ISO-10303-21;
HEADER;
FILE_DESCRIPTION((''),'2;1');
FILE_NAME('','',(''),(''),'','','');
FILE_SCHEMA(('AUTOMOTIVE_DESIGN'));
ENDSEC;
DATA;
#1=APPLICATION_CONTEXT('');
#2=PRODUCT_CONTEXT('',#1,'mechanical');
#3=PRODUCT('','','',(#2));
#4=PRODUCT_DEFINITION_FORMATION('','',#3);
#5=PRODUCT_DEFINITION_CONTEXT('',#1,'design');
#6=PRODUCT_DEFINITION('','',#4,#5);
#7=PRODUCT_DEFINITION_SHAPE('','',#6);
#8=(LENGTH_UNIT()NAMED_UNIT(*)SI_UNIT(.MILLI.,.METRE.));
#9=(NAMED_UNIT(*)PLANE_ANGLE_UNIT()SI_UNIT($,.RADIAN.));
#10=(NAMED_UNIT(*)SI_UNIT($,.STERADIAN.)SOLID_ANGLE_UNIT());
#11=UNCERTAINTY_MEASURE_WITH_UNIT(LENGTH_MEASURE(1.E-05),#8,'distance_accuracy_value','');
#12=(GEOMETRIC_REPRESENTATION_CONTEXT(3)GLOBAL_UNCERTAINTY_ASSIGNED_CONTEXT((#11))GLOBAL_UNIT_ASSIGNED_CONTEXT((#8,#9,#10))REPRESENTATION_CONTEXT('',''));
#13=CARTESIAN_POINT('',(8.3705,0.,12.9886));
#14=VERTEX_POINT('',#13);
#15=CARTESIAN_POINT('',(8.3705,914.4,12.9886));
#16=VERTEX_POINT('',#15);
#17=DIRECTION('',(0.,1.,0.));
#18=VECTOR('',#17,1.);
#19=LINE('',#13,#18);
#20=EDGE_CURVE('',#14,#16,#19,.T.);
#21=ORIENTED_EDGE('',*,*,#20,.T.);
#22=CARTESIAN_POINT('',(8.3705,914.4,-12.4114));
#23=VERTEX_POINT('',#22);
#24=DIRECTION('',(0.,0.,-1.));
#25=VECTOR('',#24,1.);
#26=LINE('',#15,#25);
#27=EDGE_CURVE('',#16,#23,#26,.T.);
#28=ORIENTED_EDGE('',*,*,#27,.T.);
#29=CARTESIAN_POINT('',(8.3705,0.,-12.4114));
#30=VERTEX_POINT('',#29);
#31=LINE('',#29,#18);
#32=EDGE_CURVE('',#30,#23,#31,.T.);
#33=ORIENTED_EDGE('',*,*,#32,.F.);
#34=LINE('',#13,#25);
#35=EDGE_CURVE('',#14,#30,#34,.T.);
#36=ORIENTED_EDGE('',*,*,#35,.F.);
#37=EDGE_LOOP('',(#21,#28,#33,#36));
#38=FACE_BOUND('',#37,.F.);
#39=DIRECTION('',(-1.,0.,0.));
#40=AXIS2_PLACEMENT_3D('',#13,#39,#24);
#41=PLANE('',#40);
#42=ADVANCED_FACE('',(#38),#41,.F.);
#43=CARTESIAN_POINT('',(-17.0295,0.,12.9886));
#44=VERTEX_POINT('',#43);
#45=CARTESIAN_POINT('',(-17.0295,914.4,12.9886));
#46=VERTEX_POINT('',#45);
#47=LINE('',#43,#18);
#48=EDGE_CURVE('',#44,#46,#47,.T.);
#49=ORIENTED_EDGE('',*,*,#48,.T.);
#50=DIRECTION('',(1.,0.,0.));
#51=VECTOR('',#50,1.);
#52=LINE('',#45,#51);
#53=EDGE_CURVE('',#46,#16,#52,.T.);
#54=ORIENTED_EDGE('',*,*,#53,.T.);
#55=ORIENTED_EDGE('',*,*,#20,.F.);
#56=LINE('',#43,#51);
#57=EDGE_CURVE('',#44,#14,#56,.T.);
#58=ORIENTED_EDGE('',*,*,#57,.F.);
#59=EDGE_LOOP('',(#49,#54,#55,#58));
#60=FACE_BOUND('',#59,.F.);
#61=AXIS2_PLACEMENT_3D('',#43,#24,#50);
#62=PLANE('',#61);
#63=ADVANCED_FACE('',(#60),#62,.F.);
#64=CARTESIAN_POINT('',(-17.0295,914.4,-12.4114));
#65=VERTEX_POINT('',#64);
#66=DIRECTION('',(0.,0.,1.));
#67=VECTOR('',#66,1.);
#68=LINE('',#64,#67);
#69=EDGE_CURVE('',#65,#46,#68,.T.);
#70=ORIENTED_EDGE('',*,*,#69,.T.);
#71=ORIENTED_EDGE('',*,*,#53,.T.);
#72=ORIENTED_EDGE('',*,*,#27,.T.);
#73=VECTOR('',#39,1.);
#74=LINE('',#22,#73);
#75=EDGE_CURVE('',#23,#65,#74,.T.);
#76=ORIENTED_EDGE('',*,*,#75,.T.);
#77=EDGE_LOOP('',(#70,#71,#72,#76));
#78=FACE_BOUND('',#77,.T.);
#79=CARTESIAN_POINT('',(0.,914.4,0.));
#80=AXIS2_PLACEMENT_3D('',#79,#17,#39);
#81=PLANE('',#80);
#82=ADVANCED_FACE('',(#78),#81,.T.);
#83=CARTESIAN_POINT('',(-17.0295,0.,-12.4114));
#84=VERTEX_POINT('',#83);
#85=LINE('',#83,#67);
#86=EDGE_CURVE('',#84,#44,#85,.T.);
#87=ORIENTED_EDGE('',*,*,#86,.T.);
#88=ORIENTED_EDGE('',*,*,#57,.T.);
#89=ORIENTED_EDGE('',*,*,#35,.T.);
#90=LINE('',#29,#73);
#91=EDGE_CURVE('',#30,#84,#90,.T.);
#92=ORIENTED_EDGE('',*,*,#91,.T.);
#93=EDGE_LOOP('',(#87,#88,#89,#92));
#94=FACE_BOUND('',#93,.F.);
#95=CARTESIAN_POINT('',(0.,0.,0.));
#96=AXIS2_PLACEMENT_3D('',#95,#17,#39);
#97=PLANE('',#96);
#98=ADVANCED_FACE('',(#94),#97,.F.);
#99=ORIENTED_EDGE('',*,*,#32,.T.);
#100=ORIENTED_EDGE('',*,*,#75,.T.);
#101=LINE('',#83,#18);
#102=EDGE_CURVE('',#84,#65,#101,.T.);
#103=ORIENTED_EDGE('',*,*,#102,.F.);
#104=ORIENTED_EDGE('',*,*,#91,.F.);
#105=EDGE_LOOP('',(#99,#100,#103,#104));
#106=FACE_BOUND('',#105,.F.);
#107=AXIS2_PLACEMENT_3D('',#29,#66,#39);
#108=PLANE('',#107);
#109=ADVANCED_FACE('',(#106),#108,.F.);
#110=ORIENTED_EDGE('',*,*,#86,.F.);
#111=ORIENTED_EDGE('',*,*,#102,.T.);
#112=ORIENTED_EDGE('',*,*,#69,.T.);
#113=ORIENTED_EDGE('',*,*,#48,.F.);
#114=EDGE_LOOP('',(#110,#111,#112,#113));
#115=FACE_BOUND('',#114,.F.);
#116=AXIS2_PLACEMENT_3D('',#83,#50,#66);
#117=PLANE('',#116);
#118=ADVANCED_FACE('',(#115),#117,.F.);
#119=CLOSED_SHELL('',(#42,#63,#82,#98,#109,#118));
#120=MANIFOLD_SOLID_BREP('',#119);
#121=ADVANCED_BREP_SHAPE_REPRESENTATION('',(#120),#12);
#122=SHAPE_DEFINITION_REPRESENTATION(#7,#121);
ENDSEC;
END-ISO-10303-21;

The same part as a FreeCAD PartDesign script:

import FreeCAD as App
import Part
import Sketcher

V = App.Vector
Q = App.Units.Quantity

doc = App.newDocument("Part")
body = doc.addObject("PartDesign::Body", "Body")

# Sketch on XZ plane
sketch1 = body.newObject("Sketcher::SketchObject", "Sketch")
sketch1.AttachmentSupport = (doc.getObject("XZ_Plane"), [""])
sketch1.MapMode = "FlatFace"
sketch1.addGeometry(Part.LineSegment(V(-17, -12, 0), V(-17, 13, 0)), False)
sketch1.addGeometry(Part.LineSegment(V(-17, 13, 0), V(8, 13, 0)), False)
sketch1.addGeometry(Part.LineSegment(V(8, 13, 0), V(8, -12, 0)), False)
sketch1.addGeometry(Part.LineSegment(V(8, -12, 0), V(-17, -12, 0)), False)
sketch1.addConstraint(Sketcher.Constraint("Coincident", 0, 2, 1, 1))
sketch1.addConstraint(Sketcher.Constraint("Coincident", 1, 2, 2, 1))
sketch1.addConstraint(Sketcher.Constraint("Coincident", 2, 2, 3, 1))
sketch1.addConstraint(Sketcher.Constraint("Coincident", 3, 2, 0, 1))
sketch1.addConstraint(Sketcher.Constraint("Vertical", 0))
sketch1.addConstraint(Sketcher.Constraint("Horizontal", 1))
sketch1.addConstraint(Sketcher.Constraint("Vertical", 2))
sketch1.addConstraint(Sketcher.Constraint("Horizontal", 3))
sketch1.addConstraint(Sketcher.Constraint("Equal", 3, 0))
sketch1.addConstraint(Sketcher.Constraint("DistanceX", 1, 1, 1, 2, Q("1 in")))
sketch1.addConstraint(Sketcher.Constraint("DistanceX", 0, 2, -1, 1, 17.0295))
sketch1.addConstraint(Sketcher.Constraint("DistanceY", -1, 1, 0, 2, 12.9886))
pad1 = body.newObject("PartDesign::Pad", "Pad")
pad1.Profile = sketch1
pad1.Length = Q("36 in")
pad1.Reversed = True

doc.recompute()
